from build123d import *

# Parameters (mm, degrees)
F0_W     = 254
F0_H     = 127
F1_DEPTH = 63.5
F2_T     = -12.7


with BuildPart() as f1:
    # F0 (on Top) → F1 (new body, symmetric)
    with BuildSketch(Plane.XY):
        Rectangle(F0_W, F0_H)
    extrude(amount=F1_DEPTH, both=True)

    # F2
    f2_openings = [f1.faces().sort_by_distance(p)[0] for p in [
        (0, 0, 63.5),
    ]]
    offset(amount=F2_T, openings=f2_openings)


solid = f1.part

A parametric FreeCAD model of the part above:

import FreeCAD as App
import Part
import Sketcher

V = App.Vector
Q = App.Units.Quantity


def faces_at(feature, points):
    """Names of the faces that lie closest to the given points."""
    faces = feature.Shape.Faces
    near = lambda p: min(range(len(faces)), key=lambda i: faces[i].distToShape(Part.Vertex(*p))[0])
    return sorted({f"Face{near(p) + 1}" for p in points})

doc = App.newDocument("Part")
body = doc.addObject("PartDesign::Body", "Body")

# Sketch on XY plane
sketch1 = body.newObject("Sketcher::SketchObject", "Sketch")
sketch1.AttachmentSupport = (doc.getObject("XY_Plane"), [""])
sketch1.MapMode = "FlatFace"
sketch1.addGeometry([
    Part.LineSegment(V(-127, 64, 0), V(-127, -64, 0)),
    Part.LineSegment(V(-127, -64, 0), V(127, -64, 0)),
    Part.LineSegment(V(127, -64, 0), V(127, 64, 0)),
    Part.LineSegment(V(127, 64, 0), V(-127, 64, 0)),
], False)
sketch1.addConstraint([
    Sketcher.Constraint("Coincident", 0, 2, 1, 1),
    Sketcher.Constraint("Coincident", 1, 2, 2, 1),
    Sketcher.Constraint("Coincident", 2, 2, 3, 1),
    Sketcher.Constraint("Coincident", 3, 2, 0, 1),
    Sketcher.Constraint("Vertical", 0),
    Sketcher.Constraint("Horizontal", 1),
    Sketcher.Constraint("Vertical", 2),
    Sketcher.Constraint("Horizontal", 3),
    Sketcher.Constraint("Symmetric", 0, 2, 2, 2, -1, 1),
    Sketcher.Constraint("DistanceX", 1, 1, 1, 2, Q("10 in")),
    Sketcher.Constraint("DistanceY", 0, 2, 0, 1, Q("5 in")),
])
pad1 = body.newObject("PartDesign::Pad", "Pad")
pad1.Profile = sketch1
pad1.Length = Q("5 in")
pad1.Midplane = True
doc.recompute()

thickness = body.newObject("PartDesign::Thickness", "Thickness")
thickness.Base = (pad1, faces_at(pad1, [(0, 0, 63.5)]))
thickness.Value = Q("0.5 in")
thickness.Reversed = True
thickness.Join = "Arc"

doc.recompute()
